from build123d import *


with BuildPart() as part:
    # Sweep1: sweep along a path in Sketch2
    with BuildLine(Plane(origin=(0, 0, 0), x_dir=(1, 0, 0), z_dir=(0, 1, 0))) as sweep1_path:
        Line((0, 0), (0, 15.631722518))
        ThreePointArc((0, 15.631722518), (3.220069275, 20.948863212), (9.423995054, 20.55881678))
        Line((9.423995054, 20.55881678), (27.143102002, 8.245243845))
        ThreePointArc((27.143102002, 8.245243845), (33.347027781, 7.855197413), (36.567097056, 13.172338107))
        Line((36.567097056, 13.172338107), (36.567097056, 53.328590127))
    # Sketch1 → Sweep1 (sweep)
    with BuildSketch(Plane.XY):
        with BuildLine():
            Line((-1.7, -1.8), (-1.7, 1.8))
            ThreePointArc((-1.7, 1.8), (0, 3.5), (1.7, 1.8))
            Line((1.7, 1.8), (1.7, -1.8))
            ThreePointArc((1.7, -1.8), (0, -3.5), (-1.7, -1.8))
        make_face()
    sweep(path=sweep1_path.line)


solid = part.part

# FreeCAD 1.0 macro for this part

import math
import FreeCAD as App
import Part
import Sketcher

V = App.Vector

doc = App.newDocument("Part")
params = doc.addObject("Spreadsheet::Sheet", "Params")
for row, (alias, value) in enumerate([
    ("sketch1_radius", "1.7 mm"),
    ("sketch1_height", "3.6 mm"),
    ("sketch2_radius", "6 mm"),
], start=1):
    params.set(f"A{row}", alias)
    params.set(f"B{row}", "=" + value)
    params.setAlias(f"B{row}", alias)

body = doc.addObject("PartDesign::Body", "Body")

sketch1 = body.newObject("Sketcher::SketchObject", "Sketch")
sketch1.AttachmentSupport = (doc.getObject("XY_Plane"), [""])
sketch1.MapMode = "FlatFace"
sketch1.addGeometry([
    Part.LineSegment(V(-1.7, 1.8, 0), V(-1.7, -1.8, 0)),
    Part.ArcOfCircle(Part.Circle(V(0, -1.8, 0), V(0, 0, 1), 1.7), math.radians(180), math.radians(360)),
    Part.LineSegment(V(1.7, -1.8, 0), V(1.7, 1.8, 0)),
    Part.ArcOfCircle(Part.Circle(V(0, 1.8, 0), V(0, 0, 1), 1.7), math.radians(0), math.radians(180)),
], False)
sketch1.addConstraint([
    Sketcher.Constraint("Tangent", 0, 2, 1, 1),
    Sketcher.Constraint("Tangent", 1, 2, 2, 1),
    Sketcher.Constraint("Tangent", 2, 2, 3, 1),
    Sketcher.Constraint("Tangent", 3, 2, 0, 1),
    Sketcher.Constraint("Vertical", 0),
    Sketcher.Constraint("Vertical", 2),
    Sketcher.Constraint("Symmetric", 1, 3, 3, 3, -1, 1),
    Sketcher.Constraint("Radius", 1, 1.7),
    Sketcher.Constraint("DistanceY", 0, 2, 0, 1, 3.6),
])
sketch1.setExpression("Constraints[7]", "Params.sketch1_radius")
sketch1.setExpression("Constraints[8]", "Params.sketch1_height")

sketch2 = body.newObject("Sketcher::SketchObject", "Sketch001")
sketch2.AttachmentSupport = (doc.getObject("XZ_Plane"), [""])
sketch2.MapMode = "FlatFace"
sketch2.addGeometry([
    Part.LineSegment(V(0, 0, 0), V(0, -16, 0)),
    Part.ArcOfCircle(Part.Circle(V(6, -16, 0), V(0, 0, 1), 6), math.radians(180), math.radians(305)),
    Part.LineSegment(V(9, -21, 0), V(27, -8, 0)),
    Part.ArcOfCircle(Part.Circle(V(31, -13, 0), V(0, 0, 1), 6), math.radians(0), math.radians(125)),
    Part.LineSegment(V(37, -13, 0), V(37, -53, 0)),
], False)
sketch2.addConstraint([
    Sketcher.Constraint("Tangent", 0, 2, 1, 1),
    Sketcher.Constraint("Tangent", 1, 2, 2, 1),
    Sketcher.Constraint("Tangent", 2, 2, 3, 2),
    Sketcher.Constraint("Tangent", 3, 1, 4, 1),
    Sketcher.Constraint("Vertical", 0),
    Sketcher.Constraint("Vertical", 4),
    Sketcher.Constraint("Coincident", 0, 1, -1, 1),
    Sketcher.Constraint("Equal", 1, 3),
    Sketcher.Constraint("Radius", 1, 6.0),
    Sketcher.Constraint("DistanceY", 0, 2, 0, 1, 15.631723),
    Sketcher.Constraint("DistanceY", 4, 2, 4, 1, 40.156252),
    Sketcher.Constraint("DistanceY", 3, 3, -1, 1, 13.172338),
    Sketcher.Constraint("DistanceY", 1, 2, 3, 3, 7.386479),
])
sketch2.setExpression("Constraints[8]", "Params.sketch2_radius")
doc.recompute()

additivepipe = body.newObject("PartDesign::AdditivePipe", "AdditivePipe")
additivepipe.Profile = sketch1
additivepipe.Spine = (sketch2, ["Edge1", "Edge2", "Edge3", "Edge4", "Edge5"])

doc.recompute()
